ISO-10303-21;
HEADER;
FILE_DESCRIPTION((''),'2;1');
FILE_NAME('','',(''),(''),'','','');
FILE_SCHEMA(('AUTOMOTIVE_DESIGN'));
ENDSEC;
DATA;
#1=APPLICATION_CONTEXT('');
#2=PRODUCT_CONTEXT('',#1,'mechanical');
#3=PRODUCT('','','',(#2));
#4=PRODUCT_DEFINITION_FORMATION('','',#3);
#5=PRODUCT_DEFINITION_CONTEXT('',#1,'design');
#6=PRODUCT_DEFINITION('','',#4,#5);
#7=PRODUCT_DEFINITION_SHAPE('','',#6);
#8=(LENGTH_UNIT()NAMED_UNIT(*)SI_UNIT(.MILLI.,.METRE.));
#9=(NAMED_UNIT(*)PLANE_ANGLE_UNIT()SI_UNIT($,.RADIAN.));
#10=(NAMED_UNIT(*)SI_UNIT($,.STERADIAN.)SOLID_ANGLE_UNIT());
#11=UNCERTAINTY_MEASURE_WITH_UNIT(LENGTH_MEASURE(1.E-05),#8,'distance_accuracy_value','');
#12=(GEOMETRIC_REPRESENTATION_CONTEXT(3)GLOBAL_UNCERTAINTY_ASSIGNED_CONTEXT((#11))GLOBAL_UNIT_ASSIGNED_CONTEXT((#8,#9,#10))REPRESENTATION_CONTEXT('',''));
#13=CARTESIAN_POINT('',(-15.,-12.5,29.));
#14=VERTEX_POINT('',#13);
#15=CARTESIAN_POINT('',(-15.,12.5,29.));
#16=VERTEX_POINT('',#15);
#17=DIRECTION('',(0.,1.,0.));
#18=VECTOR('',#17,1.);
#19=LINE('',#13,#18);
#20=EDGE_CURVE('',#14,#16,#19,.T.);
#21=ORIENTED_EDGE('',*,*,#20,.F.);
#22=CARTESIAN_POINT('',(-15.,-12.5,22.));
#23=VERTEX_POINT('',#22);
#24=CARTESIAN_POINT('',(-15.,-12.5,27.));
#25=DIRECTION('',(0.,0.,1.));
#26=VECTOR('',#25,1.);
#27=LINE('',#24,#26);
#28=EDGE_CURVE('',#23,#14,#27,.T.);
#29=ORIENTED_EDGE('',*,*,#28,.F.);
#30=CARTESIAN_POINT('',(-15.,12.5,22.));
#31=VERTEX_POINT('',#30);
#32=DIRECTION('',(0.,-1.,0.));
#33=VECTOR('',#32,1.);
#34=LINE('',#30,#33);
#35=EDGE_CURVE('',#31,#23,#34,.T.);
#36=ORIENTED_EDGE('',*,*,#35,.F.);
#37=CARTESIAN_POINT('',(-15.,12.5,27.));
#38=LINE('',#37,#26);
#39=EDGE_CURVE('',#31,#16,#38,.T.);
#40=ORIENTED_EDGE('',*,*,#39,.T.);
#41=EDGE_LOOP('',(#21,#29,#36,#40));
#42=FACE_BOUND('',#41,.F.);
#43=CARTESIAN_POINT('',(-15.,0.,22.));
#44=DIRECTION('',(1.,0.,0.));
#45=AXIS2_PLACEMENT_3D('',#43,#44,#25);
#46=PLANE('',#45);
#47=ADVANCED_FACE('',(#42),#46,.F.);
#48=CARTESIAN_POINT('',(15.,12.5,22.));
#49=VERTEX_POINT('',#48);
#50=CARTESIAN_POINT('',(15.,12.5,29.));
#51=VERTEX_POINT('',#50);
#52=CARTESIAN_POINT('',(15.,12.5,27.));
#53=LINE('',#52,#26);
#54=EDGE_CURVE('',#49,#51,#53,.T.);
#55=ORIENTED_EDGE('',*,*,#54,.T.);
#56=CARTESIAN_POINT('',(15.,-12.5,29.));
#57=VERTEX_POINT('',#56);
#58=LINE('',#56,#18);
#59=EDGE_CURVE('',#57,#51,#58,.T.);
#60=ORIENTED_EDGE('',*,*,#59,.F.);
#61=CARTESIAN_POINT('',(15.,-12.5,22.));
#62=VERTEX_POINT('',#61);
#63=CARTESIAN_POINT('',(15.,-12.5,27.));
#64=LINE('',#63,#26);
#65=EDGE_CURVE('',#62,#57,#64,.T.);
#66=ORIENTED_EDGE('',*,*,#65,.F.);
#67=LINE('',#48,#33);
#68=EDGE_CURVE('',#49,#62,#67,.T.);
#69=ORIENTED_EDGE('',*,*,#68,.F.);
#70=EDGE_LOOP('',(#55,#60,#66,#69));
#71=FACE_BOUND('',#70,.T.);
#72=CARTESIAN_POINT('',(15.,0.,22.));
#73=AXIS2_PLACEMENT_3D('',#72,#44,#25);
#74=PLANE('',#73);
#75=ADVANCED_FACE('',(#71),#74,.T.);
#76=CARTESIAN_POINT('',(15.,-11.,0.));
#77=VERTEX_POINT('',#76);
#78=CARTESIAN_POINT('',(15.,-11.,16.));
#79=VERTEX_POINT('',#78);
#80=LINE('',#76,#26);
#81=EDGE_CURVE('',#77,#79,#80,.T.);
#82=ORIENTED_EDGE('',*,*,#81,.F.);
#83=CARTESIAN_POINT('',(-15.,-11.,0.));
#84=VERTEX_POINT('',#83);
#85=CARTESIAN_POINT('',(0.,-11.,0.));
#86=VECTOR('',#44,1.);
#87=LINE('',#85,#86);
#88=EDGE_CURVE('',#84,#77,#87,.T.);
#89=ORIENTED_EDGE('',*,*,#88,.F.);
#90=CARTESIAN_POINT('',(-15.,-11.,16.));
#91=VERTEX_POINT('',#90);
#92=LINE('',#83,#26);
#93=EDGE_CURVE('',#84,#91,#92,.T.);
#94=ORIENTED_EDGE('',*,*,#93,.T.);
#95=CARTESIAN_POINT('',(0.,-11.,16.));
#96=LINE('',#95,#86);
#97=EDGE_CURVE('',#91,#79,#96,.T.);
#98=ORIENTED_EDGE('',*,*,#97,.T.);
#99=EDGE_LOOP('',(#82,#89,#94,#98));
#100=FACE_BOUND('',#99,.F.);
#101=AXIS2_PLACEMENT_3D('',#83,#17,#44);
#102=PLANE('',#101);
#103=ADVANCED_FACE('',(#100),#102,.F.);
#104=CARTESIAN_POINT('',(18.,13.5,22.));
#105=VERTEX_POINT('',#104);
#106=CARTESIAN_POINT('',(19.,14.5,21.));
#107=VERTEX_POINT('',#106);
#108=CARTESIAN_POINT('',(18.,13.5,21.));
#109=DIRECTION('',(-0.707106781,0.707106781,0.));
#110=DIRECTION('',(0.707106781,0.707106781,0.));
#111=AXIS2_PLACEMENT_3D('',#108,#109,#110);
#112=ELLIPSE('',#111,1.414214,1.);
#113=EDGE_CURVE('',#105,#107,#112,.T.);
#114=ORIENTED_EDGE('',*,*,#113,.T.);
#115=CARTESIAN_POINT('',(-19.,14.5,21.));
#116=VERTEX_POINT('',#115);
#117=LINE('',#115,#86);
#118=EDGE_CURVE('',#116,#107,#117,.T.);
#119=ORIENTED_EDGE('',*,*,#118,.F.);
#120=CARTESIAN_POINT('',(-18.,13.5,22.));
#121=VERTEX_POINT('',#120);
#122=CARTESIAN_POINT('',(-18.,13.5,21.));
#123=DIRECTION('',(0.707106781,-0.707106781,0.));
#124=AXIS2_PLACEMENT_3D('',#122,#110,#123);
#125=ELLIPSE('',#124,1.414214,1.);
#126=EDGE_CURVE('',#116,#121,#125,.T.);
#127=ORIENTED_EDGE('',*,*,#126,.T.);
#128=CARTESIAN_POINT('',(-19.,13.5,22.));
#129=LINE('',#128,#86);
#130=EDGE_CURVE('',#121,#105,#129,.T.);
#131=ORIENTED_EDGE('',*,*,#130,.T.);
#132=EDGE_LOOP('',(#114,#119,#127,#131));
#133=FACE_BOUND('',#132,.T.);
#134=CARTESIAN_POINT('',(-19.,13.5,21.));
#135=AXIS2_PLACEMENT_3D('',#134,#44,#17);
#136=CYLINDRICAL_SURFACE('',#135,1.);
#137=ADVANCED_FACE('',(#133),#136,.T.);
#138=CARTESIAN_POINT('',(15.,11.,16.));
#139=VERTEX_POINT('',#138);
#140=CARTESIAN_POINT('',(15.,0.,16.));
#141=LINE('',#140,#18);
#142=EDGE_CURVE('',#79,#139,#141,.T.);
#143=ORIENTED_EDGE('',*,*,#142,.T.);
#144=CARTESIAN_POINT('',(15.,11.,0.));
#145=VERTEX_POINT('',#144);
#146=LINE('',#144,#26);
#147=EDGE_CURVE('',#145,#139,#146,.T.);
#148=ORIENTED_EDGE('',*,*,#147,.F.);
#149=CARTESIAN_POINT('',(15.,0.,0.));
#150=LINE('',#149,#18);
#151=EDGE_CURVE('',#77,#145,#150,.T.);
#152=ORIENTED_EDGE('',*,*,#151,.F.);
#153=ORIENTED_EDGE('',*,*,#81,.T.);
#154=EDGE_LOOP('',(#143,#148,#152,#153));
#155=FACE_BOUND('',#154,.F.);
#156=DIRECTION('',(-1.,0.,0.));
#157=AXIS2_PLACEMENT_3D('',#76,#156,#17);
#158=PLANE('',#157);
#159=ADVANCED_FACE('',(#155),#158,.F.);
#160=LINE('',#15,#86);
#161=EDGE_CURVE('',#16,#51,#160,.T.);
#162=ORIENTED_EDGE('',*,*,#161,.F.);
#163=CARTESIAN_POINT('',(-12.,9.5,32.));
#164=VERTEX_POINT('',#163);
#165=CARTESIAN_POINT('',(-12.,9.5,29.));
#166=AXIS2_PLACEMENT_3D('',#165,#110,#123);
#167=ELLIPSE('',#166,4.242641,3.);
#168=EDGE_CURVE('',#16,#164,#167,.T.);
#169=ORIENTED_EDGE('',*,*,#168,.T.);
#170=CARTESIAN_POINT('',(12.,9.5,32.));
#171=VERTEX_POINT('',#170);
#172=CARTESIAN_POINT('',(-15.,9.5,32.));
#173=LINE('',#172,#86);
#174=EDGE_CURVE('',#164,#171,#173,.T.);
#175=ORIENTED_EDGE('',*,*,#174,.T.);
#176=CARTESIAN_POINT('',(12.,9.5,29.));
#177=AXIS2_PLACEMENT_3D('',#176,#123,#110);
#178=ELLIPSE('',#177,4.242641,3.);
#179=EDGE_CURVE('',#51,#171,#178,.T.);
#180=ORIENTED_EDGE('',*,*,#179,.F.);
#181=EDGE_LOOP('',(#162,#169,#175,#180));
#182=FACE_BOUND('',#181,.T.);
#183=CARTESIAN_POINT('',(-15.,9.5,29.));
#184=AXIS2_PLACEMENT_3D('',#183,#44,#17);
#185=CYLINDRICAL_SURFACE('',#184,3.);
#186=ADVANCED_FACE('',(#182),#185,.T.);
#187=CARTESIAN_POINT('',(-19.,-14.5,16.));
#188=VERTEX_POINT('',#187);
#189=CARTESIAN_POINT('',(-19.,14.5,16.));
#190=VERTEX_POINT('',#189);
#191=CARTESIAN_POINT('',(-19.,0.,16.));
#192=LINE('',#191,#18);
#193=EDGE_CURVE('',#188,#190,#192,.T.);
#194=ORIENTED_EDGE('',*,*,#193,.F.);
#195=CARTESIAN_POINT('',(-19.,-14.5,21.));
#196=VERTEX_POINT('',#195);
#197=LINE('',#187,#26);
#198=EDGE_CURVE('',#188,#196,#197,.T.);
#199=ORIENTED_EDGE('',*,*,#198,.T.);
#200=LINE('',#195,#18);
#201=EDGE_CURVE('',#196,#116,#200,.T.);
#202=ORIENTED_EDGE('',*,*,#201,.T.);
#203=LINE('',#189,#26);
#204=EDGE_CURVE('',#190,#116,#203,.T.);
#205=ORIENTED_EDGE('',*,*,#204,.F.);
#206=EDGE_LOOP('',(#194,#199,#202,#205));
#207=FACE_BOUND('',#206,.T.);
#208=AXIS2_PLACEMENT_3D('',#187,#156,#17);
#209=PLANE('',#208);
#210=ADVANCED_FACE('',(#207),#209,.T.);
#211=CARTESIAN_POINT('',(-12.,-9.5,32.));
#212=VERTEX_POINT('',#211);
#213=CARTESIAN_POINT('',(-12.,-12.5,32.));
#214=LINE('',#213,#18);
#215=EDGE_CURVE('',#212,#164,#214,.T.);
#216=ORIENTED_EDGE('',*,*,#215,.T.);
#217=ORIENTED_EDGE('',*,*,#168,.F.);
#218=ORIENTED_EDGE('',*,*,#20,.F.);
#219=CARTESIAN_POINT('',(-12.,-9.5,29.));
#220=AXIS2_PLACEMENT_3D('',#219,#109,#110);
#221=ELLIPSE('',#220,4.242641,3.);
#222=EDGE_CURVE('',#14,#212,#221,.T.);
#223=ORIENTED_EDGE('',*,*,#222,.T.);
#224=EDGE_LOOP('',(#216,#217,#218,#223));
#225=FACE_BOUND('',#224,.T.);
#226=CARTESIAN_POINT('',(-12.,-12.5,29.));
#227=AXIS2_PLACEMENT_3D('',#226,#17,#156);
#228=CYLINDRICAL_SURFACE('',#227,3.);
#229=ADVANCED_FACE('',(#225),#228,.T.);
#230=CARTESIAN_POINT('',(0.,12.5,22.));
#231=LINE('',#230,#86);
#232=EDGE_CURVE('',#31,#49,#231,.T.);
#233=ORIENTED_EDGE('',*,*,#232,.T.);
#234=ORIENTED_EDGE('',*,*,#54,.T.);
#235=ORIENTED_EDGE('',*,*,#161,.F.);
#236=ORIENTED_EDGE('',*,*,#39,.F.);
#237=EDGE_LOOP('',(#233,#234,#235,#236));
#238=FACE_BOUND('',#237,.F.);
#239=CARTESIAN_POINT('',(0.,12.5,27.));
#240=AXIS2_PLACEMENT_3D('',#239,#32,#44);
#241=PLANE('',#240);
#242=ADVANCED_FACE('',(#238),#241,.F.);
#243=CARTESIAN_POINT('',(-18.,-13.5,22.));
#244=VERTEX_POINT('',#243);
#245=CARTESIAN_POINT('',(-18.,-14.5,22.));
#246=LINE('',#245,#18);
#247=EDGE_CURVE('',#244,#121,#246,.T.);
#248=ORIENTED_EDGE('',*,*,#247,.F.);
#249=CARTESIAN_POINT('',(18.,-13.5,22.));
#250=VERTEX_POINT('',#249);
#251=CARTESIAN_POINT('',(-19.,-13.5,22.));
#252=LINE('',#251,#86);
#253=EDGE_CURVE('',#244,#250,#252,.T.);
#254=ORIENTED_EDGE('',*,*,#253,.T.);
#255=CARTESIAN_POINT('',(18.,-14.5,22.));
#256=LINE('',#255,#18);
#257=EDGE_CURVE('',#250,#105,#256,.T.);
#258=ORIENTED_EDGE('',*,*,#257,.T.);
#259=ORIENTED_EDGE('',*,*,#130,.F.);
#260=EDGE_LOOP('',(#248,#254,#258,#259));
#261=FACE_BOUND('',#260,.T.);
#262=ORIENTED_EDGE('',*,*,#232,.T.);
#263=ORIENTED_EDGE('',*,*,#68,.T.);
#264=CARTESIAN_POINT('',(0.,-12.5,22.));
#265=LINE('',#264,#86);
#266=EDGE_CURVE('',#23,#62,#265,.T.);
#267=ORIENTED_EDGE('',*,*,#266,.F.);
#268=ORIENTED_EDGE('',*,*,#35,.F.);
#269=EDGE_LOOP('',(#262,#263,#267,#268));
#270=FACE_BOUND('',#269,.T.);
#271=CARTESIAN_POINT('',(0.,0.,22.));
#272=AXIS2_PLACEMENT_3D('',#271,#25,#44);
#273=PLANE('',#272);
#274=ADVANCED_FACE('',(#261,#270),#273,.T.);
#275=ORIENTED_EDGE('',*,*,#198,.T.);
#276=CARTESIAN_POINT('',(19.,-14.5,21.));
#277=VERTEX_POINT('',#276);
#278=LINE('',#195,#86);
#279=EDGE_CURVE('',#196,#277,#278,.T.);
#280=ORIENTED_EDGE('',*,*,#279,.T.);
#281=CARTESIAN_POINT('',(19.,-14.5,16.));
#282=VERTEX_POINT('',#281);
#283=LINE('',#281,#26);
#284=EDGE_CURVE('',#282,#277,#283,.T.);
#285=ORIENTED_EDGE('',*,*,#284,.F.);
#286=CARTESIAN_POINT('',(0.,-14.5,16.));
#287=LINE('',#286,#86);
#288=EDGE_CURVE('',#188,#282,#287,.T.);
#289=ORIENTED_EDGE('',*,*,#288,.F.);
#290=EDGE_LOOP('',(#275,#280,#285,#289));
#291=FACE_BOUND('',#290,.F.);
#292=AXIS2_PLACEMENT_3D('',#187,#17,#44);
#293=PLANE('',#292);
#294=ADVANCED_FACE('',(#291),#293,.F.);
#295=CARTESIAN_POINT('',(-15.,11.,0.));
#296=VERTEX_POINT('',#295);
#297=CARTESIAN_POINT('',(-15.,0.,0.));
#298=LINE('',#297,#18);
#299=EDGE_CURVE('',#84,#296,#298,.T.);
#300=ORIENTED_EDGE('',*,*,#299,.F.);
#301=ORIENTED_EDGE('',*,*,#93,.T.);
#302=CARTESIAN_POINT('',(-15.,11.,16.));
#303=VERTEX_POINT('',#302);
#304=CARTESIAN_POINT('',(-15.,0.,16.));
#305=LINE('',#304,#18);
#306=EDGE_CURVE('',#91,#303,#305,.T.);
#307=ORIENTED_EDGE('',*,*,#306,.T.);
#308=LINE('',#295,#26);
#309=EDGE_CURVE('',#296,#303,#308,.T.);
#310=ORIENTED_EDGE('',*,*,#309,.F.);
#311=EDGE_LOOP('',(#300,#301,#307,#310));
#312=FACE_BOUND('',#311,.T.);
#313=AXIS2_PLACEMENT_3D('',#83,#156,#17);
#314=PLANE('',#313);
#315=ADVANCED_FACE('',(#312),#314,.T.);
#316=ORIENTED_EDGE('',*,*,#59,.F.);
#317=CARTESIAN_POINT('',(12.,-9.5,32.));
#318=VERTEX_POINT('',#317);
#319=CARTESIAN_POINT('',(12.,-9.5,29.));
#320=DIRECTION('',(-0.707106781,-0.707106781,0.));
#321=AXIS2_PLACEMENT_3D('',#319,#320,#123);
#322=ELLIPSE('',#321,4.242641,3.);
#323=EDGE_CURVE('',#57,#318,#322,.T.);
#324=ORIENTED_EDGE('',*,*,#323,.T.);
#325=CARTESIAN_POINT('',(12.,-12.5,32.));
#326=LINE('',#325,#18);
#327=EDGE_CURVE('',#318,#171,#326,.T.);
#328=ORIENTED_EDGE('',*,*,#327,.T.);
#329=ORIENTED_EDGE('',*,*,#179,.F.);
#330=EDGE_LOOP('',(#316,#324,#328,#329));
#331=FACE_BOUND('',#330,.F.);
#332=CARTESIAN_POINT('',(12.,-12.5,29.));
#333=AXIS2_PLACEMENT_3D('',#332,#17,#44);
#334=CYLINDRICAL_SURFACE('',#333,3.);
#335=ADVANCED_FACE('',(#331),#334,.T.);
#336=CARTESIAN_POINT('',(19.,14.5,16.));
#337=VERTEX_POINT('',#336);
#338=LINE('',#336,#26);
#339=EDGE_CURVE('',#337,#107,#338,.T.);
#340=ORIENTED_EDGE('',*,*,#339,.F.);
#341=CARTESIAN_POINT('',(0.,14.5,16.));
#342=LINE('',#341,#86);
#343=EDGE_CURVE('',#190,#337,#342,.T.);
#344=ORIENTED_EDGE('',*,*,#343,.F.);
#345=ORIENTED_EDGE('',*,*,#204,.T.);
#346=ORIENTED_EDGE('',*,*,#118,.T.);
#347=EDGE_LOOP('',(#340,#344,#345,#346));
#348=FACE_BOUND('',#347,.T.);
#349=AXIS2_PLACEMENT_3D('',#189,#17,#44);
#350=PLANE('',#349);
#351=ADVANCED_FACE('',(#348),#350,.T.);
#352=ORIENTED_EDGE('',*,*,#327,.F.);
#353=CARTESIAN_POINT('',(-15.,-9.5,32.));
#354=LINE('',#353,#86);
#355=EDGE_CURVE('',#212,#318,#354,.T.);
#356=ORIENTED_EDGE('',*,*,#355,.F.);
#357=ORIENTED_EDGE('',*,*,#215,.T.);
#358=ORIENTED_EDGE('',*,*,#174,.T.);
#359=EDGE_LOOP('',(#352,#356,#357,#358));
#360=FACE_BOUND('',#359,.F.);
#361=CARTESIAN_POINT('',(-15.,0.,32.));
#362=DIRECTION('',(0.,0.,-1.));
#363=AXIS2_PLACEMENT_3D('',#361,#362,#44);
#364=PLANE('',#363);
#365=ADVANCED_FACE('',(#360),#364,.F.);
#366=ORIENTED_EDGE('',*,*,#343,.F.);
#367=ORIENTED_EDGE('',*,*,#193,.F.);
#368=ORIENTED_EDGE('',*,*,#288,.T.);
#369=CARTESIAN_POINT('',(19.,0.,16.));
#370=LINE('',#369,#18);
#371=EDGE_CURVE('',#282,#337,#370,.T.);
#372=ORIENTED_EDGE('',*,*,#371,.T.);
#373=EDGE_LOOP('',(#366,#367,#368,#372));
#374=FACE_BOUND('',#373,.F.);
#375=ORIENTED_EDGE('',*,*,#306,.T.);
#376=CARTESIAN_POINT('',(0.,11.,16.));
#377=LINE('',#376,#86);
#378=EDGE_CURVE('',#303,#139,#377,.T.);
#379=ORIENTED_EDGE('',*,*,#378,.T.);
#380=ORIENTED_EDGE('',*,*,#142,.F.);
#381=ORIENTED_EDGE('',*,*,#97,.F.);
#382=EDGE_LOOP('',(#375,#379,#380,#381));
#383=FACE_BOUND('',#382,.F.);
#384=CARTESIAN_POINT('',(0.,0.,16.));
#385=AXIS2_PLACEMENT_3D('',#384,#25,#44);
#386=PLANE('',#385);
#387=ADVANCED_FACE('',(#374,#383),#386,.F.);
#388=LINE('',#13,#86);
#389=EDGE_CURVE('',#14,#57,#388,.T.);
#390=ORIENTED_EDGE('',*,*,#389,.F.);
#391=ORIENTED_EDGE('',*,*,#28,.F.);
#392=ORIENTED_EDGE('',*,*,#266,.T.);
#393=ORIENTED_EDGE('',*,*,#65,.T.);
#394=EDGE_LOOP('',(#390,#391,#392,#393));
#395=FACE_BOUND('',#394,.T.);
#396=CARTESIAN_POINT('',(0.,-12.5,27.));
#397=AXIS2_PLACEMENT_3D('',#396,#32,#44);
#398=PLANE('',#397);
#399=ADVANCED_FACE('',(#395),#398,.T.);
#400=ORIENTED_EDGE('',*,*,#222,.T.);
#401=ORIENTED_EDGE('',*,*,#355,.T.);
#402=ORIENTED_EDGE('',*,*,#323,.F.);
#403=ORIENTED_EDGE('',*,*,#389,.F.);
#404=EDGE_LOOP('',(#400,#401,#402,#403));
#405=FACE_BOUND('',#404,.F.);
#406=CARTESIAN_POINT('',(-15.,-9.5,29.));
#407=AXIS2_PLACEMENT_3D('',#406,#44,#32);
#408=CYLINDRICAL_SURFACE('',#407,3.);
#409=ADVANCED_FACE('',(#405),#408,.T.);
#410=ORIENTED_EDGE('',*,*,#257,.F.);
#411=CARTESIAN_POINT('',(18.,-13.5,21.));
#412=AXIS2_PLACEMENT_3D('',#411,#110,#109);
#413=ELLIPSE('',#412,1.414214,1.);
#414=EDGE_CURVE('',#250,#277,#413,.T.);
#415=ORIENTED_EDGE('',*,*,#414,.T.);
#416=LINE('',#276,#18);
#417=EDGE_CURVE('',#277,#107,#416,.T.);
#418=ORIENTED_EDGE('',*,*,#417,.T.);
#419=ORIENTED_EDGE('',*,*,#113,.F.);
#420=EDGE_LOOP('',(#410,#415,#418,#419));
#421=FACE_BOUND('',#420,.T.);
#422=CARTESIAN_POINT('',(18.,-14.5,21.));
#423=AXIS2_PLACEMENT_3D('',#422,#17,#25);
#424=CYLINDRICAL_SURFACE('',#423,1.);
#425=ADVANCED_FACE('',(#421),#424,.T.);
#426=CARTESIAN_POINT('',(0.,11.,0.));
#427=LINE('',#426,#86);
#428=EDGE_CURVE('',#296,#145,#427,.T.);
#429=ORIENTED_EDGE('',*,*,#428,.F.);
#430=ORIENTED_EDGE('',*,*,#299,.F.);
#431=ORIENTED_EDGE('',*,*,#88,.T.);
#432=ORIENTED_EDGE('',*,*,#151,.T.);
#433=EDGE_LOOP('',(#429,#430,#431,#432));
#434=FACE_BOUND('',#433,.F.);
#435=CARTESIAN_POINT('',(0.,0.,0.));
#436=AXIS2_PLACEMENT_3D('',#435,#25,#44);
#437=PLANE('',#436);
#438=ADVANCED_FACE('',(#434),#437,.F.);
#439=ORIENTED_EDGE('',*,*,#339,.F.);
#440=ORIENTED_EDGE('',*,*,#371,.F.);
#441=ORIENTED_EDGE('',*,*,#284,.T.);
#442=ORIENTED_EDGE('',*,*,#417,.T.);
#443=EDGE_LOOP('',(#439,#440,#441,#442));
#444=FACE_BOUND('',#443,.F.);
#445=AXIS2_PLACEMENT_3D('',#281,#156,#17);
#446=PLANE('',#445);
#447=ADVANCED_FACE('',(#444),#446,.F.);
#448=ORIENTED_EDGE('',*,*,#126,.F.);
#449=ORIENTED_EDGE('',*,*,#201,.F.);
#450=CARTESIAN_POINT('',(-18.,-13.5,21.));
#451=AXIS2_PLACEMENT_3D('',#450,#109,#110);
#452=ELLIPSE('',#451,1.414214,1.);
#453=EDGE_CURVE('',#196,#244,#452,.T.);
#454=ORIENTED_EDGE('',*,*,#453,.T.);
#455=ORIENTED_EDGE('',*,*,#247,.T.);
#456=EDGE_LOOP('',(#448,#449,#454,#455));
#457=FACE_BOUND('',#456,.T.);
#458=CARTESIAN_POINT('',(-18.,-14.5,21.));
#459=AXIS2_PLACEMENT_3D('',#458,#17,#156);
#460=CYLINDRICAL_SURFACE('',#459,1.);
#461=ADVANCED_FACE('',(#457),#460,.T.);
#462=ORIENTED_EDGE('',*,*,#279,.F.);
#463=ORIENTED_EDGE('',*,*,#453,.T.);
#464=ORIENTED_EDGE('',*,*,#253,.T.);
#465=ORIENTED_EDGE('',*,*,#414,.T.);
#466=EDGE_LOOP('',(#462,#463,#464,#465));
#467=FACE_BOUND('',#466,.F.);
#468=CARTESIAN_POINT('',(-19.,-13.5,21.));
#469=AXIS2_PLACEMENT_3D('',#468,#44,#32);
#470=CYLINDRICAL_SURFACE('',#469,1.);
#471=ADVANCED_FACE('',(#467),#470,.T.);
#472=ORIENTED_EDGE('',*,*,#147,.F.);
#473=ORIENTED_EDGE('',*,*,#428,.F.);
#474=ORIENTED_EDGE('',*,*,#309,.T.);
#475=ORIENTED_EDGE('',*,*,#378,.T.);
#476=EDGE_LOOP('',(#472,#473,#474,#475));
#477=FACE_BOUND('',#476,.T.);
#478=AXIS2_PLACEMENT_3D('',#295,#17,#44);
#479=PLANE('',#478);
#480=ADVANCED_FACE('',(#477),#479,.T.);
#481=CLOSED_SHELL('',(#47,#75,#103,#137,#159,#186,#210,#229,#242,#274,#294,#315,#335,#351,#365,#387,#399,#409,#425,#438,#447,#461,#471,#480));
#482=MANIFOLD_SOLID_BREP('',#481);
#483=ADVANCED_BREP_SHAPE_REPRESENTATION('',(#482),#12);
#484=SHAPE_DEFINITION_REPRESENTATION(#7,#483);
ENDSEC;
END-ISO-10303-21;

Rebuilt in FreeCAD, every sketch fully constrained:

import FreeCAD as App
import Part
import Sketcher
Q = App.Units.Quantity


def edges_at(feature, points):
    """Names of the edges that pass closest to the given points."""
    edges = feature.Shape.Edges
    near = lambda p: min(range(len(edges)), key=lambda i: edges[i].distToShape(Part.Vertex(*p))[0])
    return sorted({f"Edge{near(p) + 1}" for p in points})


def add_polygon(sketch, points):
    """Adds a closed chain of lines whose ends are joined by coincident constraints."""
    first, n = sketch.GeometryCount, len(points)
    for a, b in zip(points, points[1:] + points[:1]):
        sketch.addGeometry(Part.LineSegment(App.Vector(*a, 0), App.Vector(*b, 0)), False)
    for i in range(n):
        sketch.addConstraint(Sketcher.Constraint("Coincident", first + i, 2, first + (i + 1) % n, 1))

doc = App.newDocument("Part")
body = doc.addObject("PartDesign::Body", "Body")

# Sketch on XY plane
sketch1 = doc.addObject("Sketcher::SketchObject", "Sketch")
body.addObject(sketch1)
sketch1.AttachmentSupport = (doc.XY_Plane, [""])
sketch1.MapMode = "FlatFace"
add_polygon(sketch1, [(-15, 11), (-15, -11), (15, -11), (15, 11)])  # lines 0-3
sketch1.addConstraint([
    Sketcher.Constraint("Vertical", 0),
    Sketcher.Constraint("Horizontal", 1),
    Sketcher.Constraint("Vertical", 2),
    Sketcher.Constraint("Horizontal", 3),
    Sketcher.Constraint("Symmetric", 0, 2, 2, 2, -1, 1),
    Sketcher.Constraint("DistanceX", 1, 1, 1, 2, Q("30 mm")),
    Sketcher.Constraint("DistanceY", 0, 2, 0, 1, Q("22 mm")),
])
pad1 = doc.addObject("PartDesign::Pad", "Pad")
body.addObject(pad1)
pad1.Profile = sketch1
pad1.Length = 16

# Sketch on XY plane
sketch2 = doc.addObject("Sketcher::SketchObject", "Sketch001")
body.addObject(sketch2)
sketch2.AttachmentSupport = (doc.XY_Plane, [""])
sketch2.MapMode = "FlatFace"
sketch2.AttachmentOffset = App.Placement(App.Vector(0, 0, 16), App.Rotation())
add_polygon(sketch2, [(-19, 14), (-19, -14), (19, -14), (19, 14)])  # lines 0-3
sketch2.addConstraint([
    Sketcher.Constraint("Vertical", 0),
    Sketcher.Constraint("Horizontal", 1),
    Sketcher.Constraint("Vertical", 2),
    Sketcher.Constraint("Horizontal", 3),
    Sketcher.Constraint("Symmetric", 0, 2, 2, 2, -1, 1),
    Sketcher.Constraint("DistanceX", 1, 1, 1, 2, Q("38 mm")),
    Sketcher.Constraint("DistanceY", 0, 2, 0, 1, Q("29 mm")),
])
pad2 = doc.addObject("PartDesign::Pad", "Pad001")
body.addObject(pad2)
pad2.Profile = sketch2
pad2.Length = 6
doc.recompute()

fillet = doc.addObject("PartDesign::Fillet", "Fillet")
body.addObject(fillet)
fillet.Base = (pad2, edges_at(pad2, [
    (19, 0, 22),
    (0, 14.5, 22),
    (-19, 0, 22),
    (0, -14.5, 22),
]))
fillet.Radius = 1

# Sketch on XZ plane
sketch3 = doc.addObject("Sketcher::SketchObject", "Sketch002")
body.addObject(sketch3)
sketch3.AttachmentSupport = (doc.XZ_Plane, [""])
sketch3.MapMode = "FlatFace"
add_polygon(sketch3, [(-15, 32), (-15, 22), (15, 22), (15, 32)])  # lines 0-3
sketch3.addConstraint([
    Sketcher.Constraint("Vertical", 0),
    Sketcher.Constraint("Horizontal", 1),
    Sketcher.Constraint("Vertical", 2),
    Sketcher.Constraint("Horizontal", 3),
    Sketcher.Constraint("DistanceX", 1, 1, 1, 2, Q("30 mm")),
    Sketcher.Constraint("DistanceY", 0, 2, 0, 1, Q("10 mm")),
    Sketcher.Constraint("DistanceX", 0, 2, -1, 1, Q("15 mm")),
    Sketcher.Constraint("DistanceY", -1, 1, 0, 2, Q("22 mm")),
])
pad3 = doc.addObject("PartDesign::Pad", "Pad002")
body.addObject(pad3)
pad3.Profile = sketch3
pad3.Length = 25
pad3.Midplane = True
doc.recompute()

fillet2 = doc.addObject("PartDesign::Fillet", "Fillet001")
body.addObject(fillet2)
fillet2.Base = (pad3, edges_at(pad3, [
    (0, 12.5, 32),
    (-15, 0, 32),
    (0, -12.5, 32),
    (15, 0, 32),
]))
fillet2.Radius = 3

doc.recompute()
